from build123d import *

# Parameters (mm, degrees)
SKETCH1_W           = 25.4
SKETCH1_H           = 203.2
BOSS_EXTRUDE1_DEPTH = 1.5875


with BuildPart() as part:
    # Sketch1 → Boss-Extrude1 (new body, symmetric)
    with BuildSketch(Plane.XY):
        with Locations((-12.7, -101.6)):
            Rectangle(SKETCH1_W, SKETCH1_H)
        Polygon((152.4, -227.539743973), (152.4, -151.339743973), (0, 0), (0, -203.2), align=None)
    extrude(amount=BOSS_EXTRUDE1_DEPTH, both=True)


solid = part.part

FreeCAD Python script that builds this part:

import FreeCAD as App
import Part
import Sketcher
from FreeCAD import Vector
Q = App.Units.Quantity

doc = App.newDocument("Part")
body = doc.addObject("PartDesign::Body", "Body")

sketch1 = doc.addObject("Sketcher::SketchObject", "Sketch")
body.addObject(sketch1)
sketch1.AttachmentSupport = (doc.XY_Plane, [""])
sketch1.MapMode = "FlatFace"
sketch1.addGeometry(Part.LineSegment(Vector(-25.4, 0, 0), Vector(-25.4, -203.2, 0)), False)
sketch1.addGeometry(Part.LineSegment(Vector(-25.4, -203.2, 0), Vector(0, -203.2, 0)), False)
sketch1.addGeometry(Part.LineSegment(Vector(0, -203.2, 0), Vector(152.4, -227.539744, 0)), False)
sketch1.addGeometry(Part.LineSegment(Vector(152.4, -227.539744, 0), Vector(152.4, -151.339744, 0)), False)
sketch1.addGeometry(Part.LineSegment(Vector(152.4, -151.339744, 0), Vector(0, 0, 0)), False)
sketch1.addGeometry(Part.LineSegment(Vector(0, 0, 0), Vector(-25.4, 0, 0)), False)
sketch1.addConstraint(Sketcher.Constraint("Coincident", 0, 2, 1, 1))
sketch1.addConstraint(Sketcher.Constraint("Coincident", 1, 2, 2, 1))
sketch1.addConstraint(Sketcher.Constraint("Coincident", 2, 2, 3, 1))
sketch1.addConstraint(Sketcher.Constraint("Coincident", 3, 2, 4, 1))
sketch1.addConstraint(Sketcher.Constraint("Coincident", 4, 2, 5, 1))
sketch1.addConstraint(Sketcher.Constraint("Coincident", 5, 2, 0, 1))
sketch1.addConstraint(Sketcher.Constraint("Vertical", 0))
sketch1.addConstraint(Sketcher.Constraint("Horizontal", 1))
sketch1.addConstraint(Sketcher.Constraint("Vertical", 3))
sketch1.addConstraint(Sketcher.Constraint("Horizontal", 5))
sketch1.addConstraint(Sketcher.Constraint("Coincident", 4, 2, -1, 1))
sketch1.addConstraint(Sketcher.Constraint("PointOnObject", 1, 2, -2))
sketch1.addConstraint(Sketcher.Constraint("DistanceX", 1, 1, 1, 2, Q("1 in")))
sketch1.addConstraint(Sketcher.Constraint("DistanceY", 0, 2, 0, 1, Q("8 in")))
sketch1.addConstraint(Sketcher.Constraint("DistanceY", 3, 1, 3, 2, Q("3 in")))
sketch1.addConstraint(Sketcher.Constraint("DistanceX", -1, 1, 2, 2, Q("6 in")))
sketch1.addConstraint(Sketcher.Constraint("Angle", 4, Q("135.2 deg")))
pad1 = doc.addObject("PartDesign::Pad", "Pad")
body.addObject(pad1)
pad1.Profile = sketch1
pad1.Length = Q("0.125 in")
pad1.Midplane = True

doc.recompute()
